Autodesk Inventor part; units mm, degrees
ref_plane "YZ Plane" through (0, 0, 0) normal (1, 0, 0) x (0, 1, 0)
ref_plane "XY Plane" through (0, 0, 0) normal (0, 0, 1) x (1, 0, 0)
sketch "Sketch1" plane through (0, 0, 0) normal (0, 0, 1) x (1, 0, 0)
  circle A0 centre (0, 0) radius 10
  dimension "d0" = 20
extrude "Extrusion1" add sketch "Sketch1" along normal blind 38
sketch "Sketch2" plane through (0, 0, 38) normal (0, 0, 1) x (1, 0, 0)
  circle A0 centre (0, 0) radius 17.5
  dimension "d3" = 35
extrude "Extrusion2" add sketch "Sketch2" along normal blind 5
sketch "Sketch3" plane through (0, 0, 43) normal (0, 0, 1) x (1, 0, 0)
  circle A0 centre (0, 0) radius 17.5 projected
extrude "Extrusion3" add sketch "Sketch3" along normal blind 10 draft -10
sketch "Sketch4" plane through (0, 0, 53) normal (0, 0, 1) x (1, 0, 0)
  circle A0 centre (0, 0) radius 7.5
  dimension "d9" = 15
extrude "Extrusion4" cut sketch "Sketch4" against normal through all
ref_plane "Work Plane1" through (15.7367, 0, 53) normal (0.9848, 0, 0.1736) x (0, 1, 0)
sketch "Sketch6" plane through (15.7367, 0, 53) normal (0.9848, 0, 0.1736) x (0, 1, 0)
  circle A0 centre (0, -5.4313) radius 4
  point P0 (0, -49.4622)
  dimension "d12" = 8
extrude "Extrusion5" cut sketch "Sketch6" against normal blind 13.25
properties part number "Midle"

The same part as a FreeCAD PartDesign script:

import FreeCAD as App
import Part
import Sketcher

doc = App.newDocument("Part")
body = doc.addObject("PartDesign::Body", "Body")

# Sketch on XY plane
sketch1 = body.newObject("Sketcher::SketchObject", "Sketch")
sketch1.AttachmentSupport = (doc.getObject("XY_Plane"), [""])
sketch1.MapMode = "FlatFace"
sketch1.addGeometry(Part.Circle(App.Vector(0, 0, 0), App.Vector(0, 0, 1), 10), False)
sketch1.addConstraint([
    Sketcher.Constraint("Coincident", 0, 3, -1, 1),
    Sketcher.Constraint("Diameter", 0, 20.0),
])
pad1 = body.newObject("PartDesign::Pad", "Pad")
pad1.Profile = sketch1
pad1.Length = 38

# Sketch on XY plane
sketch2 = body.newObject("Sketcher::SketchObject", "Sketch001")
sketch2.AttachmentSupport = (doc.getObject("XY_Plane"), [""])
sketch2.MapMode = "FlatFace"
sketch2.AttachmentOffset = App.Placement(App.Vector(0, 0, 38), App.Rotation())
sketch2.addGeometry(Part.Circle(App.Vector(0, 0, 0), App.Vector(0, 0, 1), 18), False)
sketch2.addConstraint([
    Sketcher.Constraint("Coincident", 0, 3, -1, 1),
    Sketcher.Constraint("Diameter", 0, 35.0),
])
pad2 = body.newObject("PartDesign::Pad", "Pad001")
pad2.Profile = sketch2
pad2.Length = 5

# Sketch on XY plane
sketch3 = body.newObject("Sketcher::SketchObject", "Sketch002")
sketch3.AttachmentSupport = (doc.getObject("XY_Plane"), [""])
sketch3.MapMode = "FlatFace"
sketch3.AttachmentOffset = App.Placement(App.Vector(0, 0, 43), App.Rotation())
sketch3.addGeometry(Part.Circle(App.Vector(0, 0, 0), App.Vector(0, 0, 1), 18), False)
sketch3.addConstraint([
    Sketcher.Constraint("Coincident", 0, 3, -1, 1),
    Sketcher.Constraint("Diameter", 0, 35.0),
])
pad3 = body.newObject("PartDesign::Pad", "Pad002")
pad3.Profile = sketch3
pad3.Length = 10
pad3.TaperAngle = -10

# Sketch on XY plane
sketch4 = body.newObject("Sketcher::SketchObject", "Sketch003")
sketch4.AttachmentSupport = (doc.getObject("XY_Plane"), [""])
sketch4.MapMode = "FlatFace"
sketch4.AttachmentOffset = App.Placement(App.Vector(0, 0, 53), App.Rotation())
sketch4.addGeometry(Part.Circle(App.Vector(0, 0, 0), App.Vector(0, 0, 1), 8), False)
sketch4.addConstraint([
    Sketcher.Constraint("Coincident", 0, 3, -1, 1),
    Sketcher.Constraint("Diameter", 0, 15.0),
])
pocket1 = body.newObject("PartDesign::Pocket", "Pocket")
pocket1.Profile = sketch4
pocket1.Type = "ThroughAll"

# Sketch on an angled plane
sketch5 = body.newObject("Sketcher::SketchObject", "Sketch004")
sketch5.Placement = App.Placement(App.Vector(15.7367, 0, 53), App.Rotation(App.Vector(0, 1, 0), App.Vector(-0.173648178, 0, 0.984807753), App.Vector(0.984807753, 0, 0.173648178), "ZXY"))
sketch5.addGeometry(Part.Circle(App.Vector(0, -5.4, 0), App.Vector(0, 0, 1), 4), False)
sketch5.addConstraint([
    Sketcher.Constraint("PointOnObject", 0, 3, -2),
    Sketcher.Constraint("Diameter", 0, 8.0),
    Sketcher.Constraint("DistanceY", 0, 3, -1, 1, 5.4313),
])
pocket2 = body.newObject("PartDesign::Pocket", "Pocket001")
pocket2.Profile = sketch5
pocket2.Length = 13.25

doc.recompute()
